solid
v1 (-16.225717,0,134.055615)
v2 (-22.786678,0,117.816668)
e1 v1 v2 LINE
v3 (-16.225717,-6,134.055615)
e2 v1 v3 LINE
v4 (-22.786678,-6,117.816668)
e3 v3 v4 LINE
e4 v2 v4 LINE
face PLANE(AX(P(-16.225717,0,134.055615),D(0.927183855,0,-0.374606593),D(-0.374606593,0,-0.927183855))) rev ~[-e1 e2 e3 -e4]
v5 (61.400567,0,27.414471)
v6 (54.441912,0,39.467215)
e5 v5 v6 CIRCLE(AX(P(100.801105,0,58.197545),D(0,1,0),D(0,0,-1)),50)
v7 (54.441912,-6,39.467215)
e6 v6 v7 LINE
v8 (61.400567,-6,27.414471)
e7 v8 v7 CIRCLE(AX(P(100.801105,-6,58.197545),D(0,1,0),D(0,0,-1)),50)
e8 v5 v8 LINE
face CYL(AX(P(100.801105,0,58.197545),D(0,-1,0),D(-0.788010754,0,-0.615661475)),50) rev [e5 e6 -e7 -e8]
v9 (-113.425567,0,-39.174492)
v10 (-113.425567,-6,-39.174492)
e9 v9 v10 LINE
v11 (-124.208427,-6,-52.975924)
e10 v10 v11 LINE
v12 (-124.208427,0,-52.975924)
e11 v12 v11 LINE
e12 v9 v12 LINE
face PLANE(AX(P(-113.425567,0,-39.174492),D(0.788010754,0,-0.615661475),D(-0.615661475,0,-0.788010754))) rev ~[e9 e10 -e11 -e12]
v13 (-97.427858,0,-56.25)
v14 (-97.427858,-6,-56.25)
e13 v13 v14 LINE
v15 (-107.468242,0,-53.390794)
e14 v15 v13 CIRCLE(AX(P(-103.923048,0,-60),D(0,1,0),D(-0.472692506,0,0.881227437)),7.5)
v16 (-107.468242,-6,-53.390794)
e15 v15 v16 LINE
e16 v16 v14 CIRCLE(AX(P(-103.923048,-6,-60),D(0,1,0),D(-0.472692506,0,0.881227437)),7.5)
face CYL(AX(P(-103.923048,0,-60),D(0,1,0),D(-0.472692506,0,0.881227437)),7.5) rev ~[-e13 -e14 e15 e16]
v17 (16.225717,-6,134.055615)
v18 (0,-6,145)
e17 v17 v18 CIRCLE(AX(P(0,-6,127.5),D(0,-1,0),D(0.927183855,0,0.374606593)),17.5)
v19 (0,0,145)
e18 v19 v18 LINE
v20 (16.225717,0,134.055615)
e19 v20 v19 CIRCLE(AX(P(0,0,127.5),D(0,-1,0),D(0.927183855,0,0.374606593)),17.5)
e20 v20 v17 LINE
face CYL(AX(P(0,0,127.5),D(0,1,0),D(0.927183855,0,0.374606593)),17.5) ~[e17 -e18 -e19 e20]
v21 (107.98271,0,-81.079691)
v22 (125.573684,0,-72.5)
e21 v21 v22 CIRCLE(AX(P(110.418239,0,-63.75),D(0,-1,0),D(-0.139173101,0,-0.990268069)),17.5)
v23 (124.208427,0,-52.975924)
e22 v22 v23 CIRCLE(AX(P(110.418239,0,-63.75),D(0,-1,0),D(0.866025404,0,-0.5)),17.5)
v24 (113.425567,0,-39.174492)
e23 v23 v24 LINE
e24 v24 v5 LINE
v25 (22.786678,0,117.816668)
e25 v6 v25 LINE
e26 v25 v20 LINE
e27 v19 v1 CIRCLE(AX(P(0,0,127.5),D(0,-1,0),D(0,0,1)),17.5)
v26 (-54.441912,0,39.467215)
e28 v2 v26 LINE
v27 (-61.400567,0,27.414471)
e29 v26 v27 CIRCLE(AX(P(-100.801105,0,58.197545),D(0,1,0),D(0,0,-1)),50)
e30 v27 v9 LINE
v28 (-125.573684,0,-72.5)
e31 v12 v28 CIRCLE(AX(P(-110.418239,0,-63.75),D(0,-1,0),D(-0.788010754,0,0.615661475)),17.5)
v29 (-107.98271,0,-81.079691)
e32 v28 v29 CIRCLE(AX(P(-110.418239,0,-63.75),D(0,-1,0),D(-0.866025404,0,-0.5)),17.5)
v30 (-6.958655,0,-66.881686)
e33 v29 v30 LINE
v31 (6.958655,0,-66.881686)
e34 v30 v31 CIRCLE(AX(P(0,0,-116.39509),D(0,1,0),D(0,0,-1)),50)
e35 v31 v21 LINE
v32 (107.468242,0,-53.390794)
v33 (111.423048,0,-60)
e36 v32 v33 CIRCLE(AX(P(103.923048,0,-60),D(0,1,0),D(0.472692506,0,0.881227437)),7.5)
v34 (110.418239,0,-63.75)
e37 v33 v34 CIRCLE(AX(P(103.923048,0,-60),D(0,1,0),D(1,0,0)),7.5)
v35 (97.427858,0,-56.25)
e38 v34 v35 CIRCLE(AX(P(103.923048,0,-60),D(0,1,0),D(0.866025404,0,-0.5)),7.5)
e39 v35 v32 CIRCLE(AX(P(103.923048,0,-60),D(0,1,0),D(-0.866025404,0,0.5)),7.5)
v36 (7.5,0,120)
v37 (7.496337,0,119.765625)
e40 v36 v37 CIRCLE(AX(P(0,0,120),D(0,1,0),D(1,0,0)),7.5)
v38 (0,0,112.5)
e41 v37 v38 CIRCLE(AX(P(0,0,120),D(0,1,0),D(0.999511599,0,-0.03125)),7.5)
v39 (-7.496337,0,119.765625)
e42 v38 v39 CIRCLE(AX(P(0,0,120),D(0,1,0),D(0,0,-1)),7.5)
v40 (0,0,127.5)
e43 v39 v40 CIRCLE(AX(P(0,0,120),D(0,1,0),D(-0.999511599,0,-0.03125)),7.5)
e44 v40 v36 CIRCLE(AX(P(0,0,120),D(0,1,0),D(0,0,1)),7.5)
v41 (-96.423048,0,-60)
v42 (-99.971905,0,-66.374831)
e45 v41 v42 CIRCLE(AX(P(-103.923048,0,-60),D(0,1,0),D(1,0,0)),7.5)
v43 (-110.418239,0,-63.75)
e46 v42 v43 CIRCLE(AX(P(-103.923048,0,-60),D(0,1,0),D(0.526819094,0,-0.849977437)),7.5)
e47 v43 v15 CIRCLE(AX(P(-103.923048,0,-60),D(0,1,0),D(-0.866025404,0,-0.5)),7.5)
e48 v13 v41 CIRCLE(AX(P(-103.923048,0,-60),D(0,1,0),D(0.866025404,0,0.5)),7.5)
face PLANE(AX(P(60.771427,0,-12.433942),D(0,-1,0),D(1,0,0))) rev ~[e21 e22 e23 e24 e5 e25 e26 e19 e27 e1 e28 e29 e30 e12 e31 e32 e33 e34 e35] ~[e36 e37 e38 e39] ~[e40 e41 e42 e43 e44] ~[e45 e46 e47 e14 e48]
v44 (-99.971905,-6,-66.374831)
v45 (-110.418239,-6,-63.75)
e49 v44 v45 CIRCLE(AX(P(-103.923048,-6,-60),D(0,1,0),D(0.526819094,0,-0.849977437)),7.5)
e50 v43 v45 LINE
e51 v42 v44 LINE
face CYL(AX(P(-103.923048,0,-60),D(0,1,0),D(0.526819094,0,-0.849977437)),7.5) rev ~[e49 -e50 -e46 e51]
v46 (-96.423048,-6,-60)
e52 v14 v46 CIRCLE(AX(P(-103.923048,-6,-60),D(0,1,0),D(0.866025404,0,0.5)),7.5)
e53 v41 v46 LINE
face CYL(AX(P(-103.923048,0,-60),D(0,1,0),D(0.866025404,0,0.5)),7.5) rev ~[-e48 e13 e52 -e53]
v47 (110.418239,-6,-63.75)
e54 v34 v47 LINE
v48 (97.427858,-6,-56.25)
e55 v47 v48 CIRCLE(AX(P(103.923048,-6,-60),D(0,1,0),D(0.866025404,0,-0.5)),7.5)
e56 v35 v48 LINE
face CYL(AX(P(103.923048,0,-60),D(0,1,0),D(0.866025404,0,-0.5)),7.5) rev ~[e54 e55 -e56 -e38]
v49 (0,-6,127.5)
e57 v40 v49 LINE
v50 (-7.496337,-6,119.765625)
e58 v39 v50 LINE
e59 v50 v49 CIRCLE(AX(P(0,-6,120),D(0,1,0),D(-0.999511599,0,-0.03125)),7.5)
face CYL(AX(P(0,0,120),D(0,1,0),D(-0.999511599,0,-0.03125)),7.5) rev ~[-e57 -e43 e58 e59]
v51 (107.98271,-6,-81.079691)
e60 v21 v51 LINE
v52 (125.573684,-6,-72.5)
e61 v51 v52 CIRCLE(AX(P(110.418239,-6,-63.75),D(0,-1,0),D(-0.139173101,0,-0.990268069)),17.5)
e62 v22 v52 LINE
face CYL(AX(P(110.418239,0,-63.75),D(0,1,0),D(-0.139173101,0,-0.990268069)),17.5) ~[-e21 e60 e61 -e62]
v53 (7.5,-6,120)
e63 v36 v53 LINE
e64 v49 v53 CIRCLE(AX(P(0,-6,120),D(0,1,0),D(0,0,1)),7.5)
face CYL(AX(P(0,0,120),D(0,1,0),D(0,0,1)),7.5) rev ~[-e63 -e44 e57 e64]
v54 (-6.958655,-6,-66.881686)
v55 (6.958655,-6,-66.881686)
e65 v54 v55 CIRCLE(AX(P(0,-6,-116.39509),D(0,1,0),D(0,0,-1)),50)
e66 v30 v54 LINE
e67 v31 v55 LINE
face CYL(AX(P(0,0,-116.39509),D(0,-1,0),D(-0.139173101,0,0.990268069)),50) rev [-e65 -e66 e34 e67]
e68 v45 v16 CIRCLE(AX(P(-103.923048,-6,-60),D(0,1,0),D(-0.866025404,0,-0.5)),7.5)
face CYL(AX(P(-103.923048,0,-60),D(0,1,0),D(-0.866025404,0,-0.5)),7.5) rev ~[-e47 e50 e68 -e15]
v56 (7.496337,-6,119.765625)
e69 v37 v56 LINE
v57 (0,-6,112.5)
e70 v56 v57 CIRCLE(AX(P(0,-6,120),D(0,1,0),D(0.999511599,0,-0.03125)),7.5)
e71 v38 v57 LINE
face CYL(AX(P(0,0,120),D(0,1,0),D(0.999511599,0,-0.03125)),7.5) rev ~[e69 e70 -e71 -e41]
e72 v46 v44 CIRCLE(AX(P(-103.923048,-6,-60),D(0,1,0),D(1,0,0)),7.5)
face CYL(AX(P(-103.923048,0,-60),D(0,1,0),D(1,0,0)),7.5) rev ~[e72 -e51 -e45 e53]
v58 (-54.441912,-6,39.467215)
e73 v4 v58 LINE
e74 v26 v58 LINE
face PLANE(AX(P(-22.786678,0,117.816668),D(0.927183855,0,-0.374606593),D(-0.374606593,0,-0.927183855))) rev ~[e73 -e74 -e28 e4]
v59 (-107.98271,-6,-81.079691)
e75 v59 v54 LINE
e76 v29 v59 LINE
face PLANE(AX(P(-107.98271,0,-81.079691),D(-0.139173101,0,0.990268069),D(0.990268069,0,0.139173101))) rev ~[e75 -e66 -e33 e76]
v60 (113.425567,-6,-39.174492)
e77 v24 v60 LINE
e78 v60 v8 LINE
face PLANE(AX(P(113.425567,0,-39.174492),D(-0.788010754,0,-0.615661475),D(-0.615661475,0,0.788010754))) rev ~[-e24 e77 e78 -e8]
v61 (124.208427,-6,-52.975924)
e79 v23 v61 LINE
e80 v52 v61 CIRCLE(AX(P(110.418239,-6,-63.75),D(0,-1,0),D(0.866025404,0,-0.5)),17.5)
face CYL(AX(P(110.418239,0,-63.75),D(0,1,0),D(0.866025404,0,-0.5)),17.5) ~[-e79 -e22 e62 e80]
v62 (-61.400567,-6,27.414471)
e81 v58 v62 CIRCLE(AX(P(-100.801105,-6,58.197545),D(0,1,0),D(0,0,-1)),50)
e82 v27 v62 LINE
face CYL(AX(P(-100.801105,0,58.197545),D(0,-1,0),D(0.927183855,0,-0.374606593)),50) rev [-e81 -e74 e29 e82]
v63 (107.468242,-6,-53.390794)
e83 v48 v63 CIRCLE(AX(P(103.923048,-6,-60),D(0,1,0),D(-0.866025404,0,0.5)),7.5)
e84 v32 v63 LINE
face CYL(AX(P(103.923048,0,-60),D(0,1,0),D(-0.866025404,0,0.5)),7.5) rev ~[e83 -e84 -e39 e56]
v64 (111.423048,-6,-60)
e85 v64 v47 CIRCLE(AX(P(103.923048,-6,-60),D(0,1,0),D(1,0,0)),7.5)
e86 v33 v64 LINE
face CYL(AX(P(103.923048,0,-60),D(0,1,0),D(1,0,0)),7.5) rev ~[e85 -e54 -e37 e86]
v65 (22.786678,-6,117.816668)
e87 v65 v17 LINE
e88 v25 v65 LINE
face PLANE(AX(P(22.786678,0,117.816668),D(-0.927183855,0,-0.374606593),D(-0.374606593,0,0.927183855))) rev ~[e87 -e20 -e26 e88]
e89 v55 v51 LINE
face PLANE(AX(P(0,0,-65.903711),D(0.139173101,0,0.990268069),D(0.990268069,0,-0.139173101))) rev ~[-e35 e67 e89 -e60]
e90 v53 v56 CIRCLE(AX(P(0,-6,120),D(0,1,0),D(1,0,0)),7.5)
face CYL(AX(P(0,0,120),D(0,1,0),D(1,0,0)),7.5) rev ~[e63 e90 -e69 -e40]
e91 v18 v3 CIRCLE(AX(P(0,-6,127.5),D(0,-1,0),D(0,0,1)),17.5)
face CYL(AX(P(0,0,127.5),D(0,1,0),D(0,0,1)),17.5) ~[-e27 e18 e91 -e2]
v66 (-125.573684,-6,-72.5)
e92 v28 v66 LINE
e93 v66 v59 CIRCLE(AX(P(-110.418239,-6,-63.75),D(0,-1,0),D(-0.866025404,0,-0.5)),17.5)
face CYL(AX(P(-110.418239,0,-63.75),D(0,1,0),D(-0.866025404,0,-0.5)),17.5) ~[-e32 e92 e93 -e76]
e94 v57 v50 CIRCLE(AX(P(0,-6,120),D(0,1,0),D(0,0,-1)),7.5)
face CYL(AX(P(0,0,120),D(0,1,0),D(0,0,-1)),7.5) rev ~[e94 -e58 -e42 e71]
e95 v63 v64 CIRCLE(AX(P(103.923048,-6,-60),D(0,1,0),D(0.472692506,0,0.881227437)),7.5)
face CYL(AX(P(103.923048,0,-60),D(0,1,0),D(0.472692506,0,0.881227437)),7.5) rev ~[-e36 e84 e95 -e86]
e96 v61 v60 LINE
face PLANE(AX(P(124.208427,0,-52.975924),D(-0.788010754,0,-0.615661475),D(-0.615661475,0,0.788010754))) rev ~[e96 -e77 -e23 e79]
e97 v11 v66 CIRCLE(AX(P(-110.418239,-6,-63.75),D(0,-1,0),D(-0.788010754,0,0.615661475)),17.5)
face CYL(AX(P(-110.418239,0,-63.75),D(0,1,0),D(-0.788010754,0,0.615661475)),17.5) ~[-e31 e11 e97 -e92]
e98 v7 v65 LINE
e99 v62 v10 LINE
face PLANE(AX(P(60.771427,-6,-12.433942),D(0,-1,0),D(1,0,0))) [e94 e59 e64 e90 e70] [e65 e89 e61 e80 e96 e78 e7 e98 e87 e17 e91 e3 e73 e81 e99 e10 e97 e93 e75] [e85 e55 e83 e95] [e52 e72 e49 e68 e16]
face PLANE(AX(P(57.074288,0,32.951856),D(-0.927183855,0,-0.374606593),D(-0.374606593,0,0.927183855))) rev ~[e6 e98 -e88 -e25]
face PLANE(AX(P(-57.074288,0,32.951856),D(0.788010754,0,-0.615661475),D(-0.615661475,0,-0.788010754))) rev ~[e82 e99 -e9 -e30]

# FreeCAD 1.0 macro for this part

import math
import FreeCAD as App
import Part
import Sketcher
from FreeCAD import Vector
Q = App.Units.Quantity


def edges_at(feature, points):
    """Names of the edges that pass closest to the given points."""
    edges = feature.Shape.Edges
    near = lambda p: min(range(len(edges)), key=lambda i: edges[i].distToShape(Part.Vertex(*p))[0])
    return sorted({f"Edge{near(p) + 1}" for p in points})

doc = App.newDocument("Part")
body = doc.addObject("PartDesign::Body", "Body")

sketch1 = body.newObject("Sketcher::SketchObject", "Sketch")
sketch1.AttachmentSupport = (doc.getObject("XZ_Plane"), [""])
sketch1.MapMode = "FlatFace"
sketch1.addGeometry([
    Part.LineSegment(Vector(113.43, -39.17, 0), Vector(57.07, 32.95, 0)),
    Part.LineSegment(Vector(57.07, 32.95, 0), Vector(22.79, 117.82, 0)),
    Part.LineSegment(Vector(22.79, 117.82, 0), Vector(16.23, 134.06, 0)),
    Part.ArcOfCircle(Part.Circle(Vector(0, 127.5, 0), Vector(0, 0, 1), 17.5), math.radians(22), math.radians(90)),
    Part.ArcOfCircle(Part.Circle(Vector(0, 127.5, 0), Vector(0, 0, 1), 17.5), math.radians(90), math.radians(158)),
    Part.LineSegment(Vector(-16.23, 134.06, 0), Vector(-22.79, 117.82, 0)),
    Part.LineSegment(Vector(-22.79, 117.82, 0), Vector(-57.07, 32.95, 0)),
    Part.LineSegment(Vector(-57.07, 32.95, 0), Vector(-113.43, -39.17, 0)),
    Part.LineSegment(Vector(-113.43, -39.17, 0), Vector(-124.21, -52.98, 0)),
    Part.ArcOfCircle(Part.Circle(Vector(-110.42, -63.75, 0), Vector(0, 0, 1), 17.5), math.radians(142), math.radians(210)),
    Part.ArcOfCircle(Part.Circle(Vector(-110.42, -63.75, 0), Vector(0, 0, 1), 17.5), math.radians(-150), math.radians(-82)),
    Part.LineSegment(Vector(-107.98, -81.08, 0), Vector(0, -65.9, 0)),
    Part.LineSegment(Vector(0, -65.9, 0), Vector(107.98, -81.08, 0)),
    Part.ArcOfCircle(Part.Circle(Vector(110.42, -63.75, 0), Vector(0, 0, 1), 17.5), math.radians(-98), math.radians(-30)),
    Part.ArcOfCircle(Part.Circle(Vector(110.42, -63.75, 0), Vector(0, 0, 1), 17.5), math.radians(-30), math.radians(38)),
    Part.LineSegment(Vector(124.21, -52.98, 0), Vector(113.43, -39.17, 0)),
    Part.ArcOfCircle(Part.Circle(Vector(0, 120, 0), Vector(0, 0, 1), 7.5), math.radians(-178), math.radians(-90)),
    Part.ArcOfCircle(Part.Circle(Vector(0, 120, 0), Vector(0, 0, 1), 7.5), math.radians(90), math.radians(182)),
    Part.ArcOfCircle(Part.Circle(Vector(0, 120, 0), Vector(0, 0, 1), 7.5), math.radians(0), math.radians(90)),
    Part.ArcOfCircle(Part.Circle(Vector(0, 120, 0), Vector(0, 0, 1), 7.5), math.radians(-1.79), math.radians(0)),
    Part.ArcOfCircle(Part.Circle(Vector(0, 120, 0), Vector(0, 0, 1), 7.5), math.radians(-90), math.radians(-2)),
    Part.ArcOfCircle(Part.Circle(Vector(103.92, -60, 0), Vector(0, 0, 1), 7.5), math.radians(62), math.radians(150)),
    Part.ArcOfCircle(Part.Circle(Vector(103.92, -60, 0), Vector(0, 0, 1), 7.5), math.radians(0), math.radians(62)),
    Part.ArcOfCircle(Part.Circle(Vector(103.92, -60, 0), Vector(0, 0, 1), 7.5), math.radians(-30), math.radians(0)),
    Part.ArcOfCircle(Part.Circle(Vector(103.92, -60, 0), Vector(0, 0, 1), 7.5), math.radians(150), math.radians(330)),
    Part.ArcOfCircle(Part.Circle(Vector(-103.92, -60, 0), Vector(0, 0, 1), 7.5), math.radians(118), math.radians(210)),
    Part.ArcOfCircle(Part.Circle(Vector(-103.92, -60, 0), Vector(0, 0, 1), 7.5), math.radians(30), math.radians(118)),
    Part.ArcOfCircle(Part.Circle(Vector(-103.92, -60, 0), Vector(0, 0, 1), 7.5), math.radians(0), math.radians(30)),
    Part.ArcOfCircle(Part.Circle(Vector(-103.92, -60, 0), Vector(0, 0, 1), 7.5), math.radians(-58), math.radians(0)),
    Part.ArcOfCircle(Part.Circle(Vector(-103.92, -60, 0), Vector(0, 0, 1), 7.5), math.radians(-150), math.radians(-58)),
], False)
sketch1.addConstraint([
    Sketcher.Constraint("Coincident", 0, 2, 1, 1),
    Sketcher.Constraint("Coincident", 1, 2, 2, 1),
    Sketcher.Constraint("Tangent", 2, 2, 3, 1),
    Sketcher.Constraint("Tangent", 3, 2, 4, 1),
    Sketcher.Constraint("Tangent", 4, 2, 5, 1),
    Sketcher.Constraint("Coincident", 5, 2, 6, 1),
    Sketcher.Constraint("Coincident", 6, 2, 7, 1),
    Sketcher.Constraint("Coincident", 7, 2, 8, 1),
    Sketcher.Constraint("Tangent", 8, 2, 9, 1),
    Sketcher.Constraint("Tangent", 9, 2, 10, 1),
    Sketcher.Constraint("Tangent", 10, 2, 11, 1),
    Sketcher.Constraint("Coincident", 11, 2, 12, 1),
    Sketcher.Constraint("Tangent", 12, 2, 13, 1),
    Sketcher.Constraint("Tangent", 13, 2, 14, 1),
    Sketcher.Constraint("Tangent", 14, 2, 15, 1),
    Sketcher.Constraint("Coincident", 15, 2, 0, 1),
    Sketcher.Constraint("Tangent", 16, 1, 17, 2),
    Sketcher.Constraint("Tangent", 17, 1, 18, 2),
    Sketcher.Constraint("Tangent", 18, 1, 19, 2),
    Sketcher.Constraint("Tangent", 19, 1, 20, 2),
    Sketcher.Constraint("Tangent", 20, 1, 16, 2),
    Sketcher.Constraint("Tangent", 21, 1, 22, 2),
    Sketcher.Constraint("Tangent", 22, 1, 23, 2),
    Sketcher.Constraint("Tangent", 23, 1, 24, 2),
    Sketcher.Constraint("Tangent", 24, 1, 21, 2),
    Sketcher.Constraint("Tangent", 25, 1, 26, 2),
    Sketcher.Constraint("Tangent", 26, 1, 27, 2),
    Sketcher.Constraint("Tangent", 27, 1, 28, 2),
    Sketcher.Constraint("Tangent", 28, 1, 29, 2),
    Sketcher.Constraint("Tangent", 29, 1, 25, 2),
    Sketcher.Constraint("Coincident", 18, 3, 16, 3),
    Sketcher.Constraint("Coincident", 27, 3, 25, 3),
    Sketcher.Constraint("Coincident", 17, 1, 3, 3),
    Sketcher.Constraint("Coincident", 23, 1, 13, 3),
    Sketcher.Constraint("Coincident", 29, 1, 9, 3),
    Sketcher.Constraint("Equal", 3, 4),
    Sketcher.Constraint("Equal", 4, 9),
    Sketcher.Constraint("Equal", 9, 10),
    Sketcher.Constraint("Equal", 10, 13),
    Sketcher.Constraint("Equal", 13, 14),
    Sketcher.Constraint("Equal", 20, 21),
    Sketcher.Constraint("Equal", 21, 22),
    Sketcher.Constraint("Equal", 24, 25),
    Sketcher.Constraint("Symmetric", 9, 3, 13, 3, -2),
    Sketcher.Constraint("Symmetric", 2, 2, 4, 2, -2),
    Sketcher.Constraint("Symmetric", 0, 2, 6, 2, -2),
    Sketcher.Constraint("Symmetric", 7, 2, 15, 2, -2),
    Sketcher.Constraint("Symmetric", 16, 1, 19, 1, -2),
    Sketcher.Constraint("Symmetric", 21, 1, 25, 1, -2),
    Sketcher.Constraint("PointOnObject", 3, 2, -2),
    Sketcher.Constraint("PointOnObject", 11, 2, -2),
    Sketcher.Constraint("PointOnObject", 20, 1, -2),
    Sketcher.Constraint("Parallel", 1, 2),
    Sketcher.Constraint("Parallel", 7, 8),
    Sketcher.Constraint("Horizontal", 1, 2, 5, 2),
    Sketcher.Constraint("Horizontal", 9, 2, 13, 2),
    Sketcher.Constraint("Horizontal", 20, 3, 18, 1),
    Sketcher.Constraint("Horizontal", 29, 3, 22, 1),
    Sketcher.Constraint("Horizontal", 24, 1, 26, 1),
    Sketcher.Constraint("Horizontal", 22, 1, 27, 1),
    Sketcher.Constraint("Equal", 0, 1),
    Sketcher.Constraint("Equal", 5, 8),
    Sketcher.Constraint("Radius", 3, 17.5),
    Sketcher.Constraint("Radius", 16, 7.5),
    Sketcher.Constraint("Angle", 0, Q("128 deg")),
    Sketcher.Constraint("Angle", 1, Q("112 deg")),
    Sketcher.Constraint("Angle", 11, Q("8 deg")),
    Sketcher.Constraint("DistanceY", -1, 1, 16, 3, 120.0),
    Sketcher.Constraint("DistanceY", 21, 3, -1, 1, 60.0),
    Sketcher.Constraint("DistanceY", 9, 2, -1, 1, 72.5),
    Sketcher.Constraint("DistanceY", 9, 3, -1, 1, 63.75),
    Sketcher.Constraint("DistanceY", 24, 1, -1, 1, 56.25),
    Sketcher.Constraint("Distance", 0, 91.529649),
    Sketcher.Constraint("DistanceY", 28, 1, -1, 1, 66.374831),
    Sketcher.Constraint("DistanceX", 16, 1, -1, 1, 7.496337),
    Sketcher.Constraint("DistanceX", -1, 1, 21, 1, 107.468242),
])
pad1 = body.newObject("PartDesign::Pad", "Pad")
pad1.Profile = sketch1
pad1.Length = 6
doc.recompute()

fillet = body.newObject("PartDesign::Fillet", "Fillet")
fillet.Base = (pad1, edges_at(pad1, [(-57.074, -3, 32.952)]))
fillet.Radius = 50
doc.recompute()

fillet2 = body.newObject("PartDesign::Fillet", "Fillet001")
fillet2.Base = (fillet, edges_at(fillet, [(0, -3, -65.904)]))
fillet2.Radius = 50
doc.recompute()

fillet3 = body.newObject("PartDesign::Fillet", "Fillet002")
fillet3.Base = (fillet2, edges_at(fillet2, [(57.074, -3, 32.952)]))
fillet3.Radius = 50

doc.recompute()
